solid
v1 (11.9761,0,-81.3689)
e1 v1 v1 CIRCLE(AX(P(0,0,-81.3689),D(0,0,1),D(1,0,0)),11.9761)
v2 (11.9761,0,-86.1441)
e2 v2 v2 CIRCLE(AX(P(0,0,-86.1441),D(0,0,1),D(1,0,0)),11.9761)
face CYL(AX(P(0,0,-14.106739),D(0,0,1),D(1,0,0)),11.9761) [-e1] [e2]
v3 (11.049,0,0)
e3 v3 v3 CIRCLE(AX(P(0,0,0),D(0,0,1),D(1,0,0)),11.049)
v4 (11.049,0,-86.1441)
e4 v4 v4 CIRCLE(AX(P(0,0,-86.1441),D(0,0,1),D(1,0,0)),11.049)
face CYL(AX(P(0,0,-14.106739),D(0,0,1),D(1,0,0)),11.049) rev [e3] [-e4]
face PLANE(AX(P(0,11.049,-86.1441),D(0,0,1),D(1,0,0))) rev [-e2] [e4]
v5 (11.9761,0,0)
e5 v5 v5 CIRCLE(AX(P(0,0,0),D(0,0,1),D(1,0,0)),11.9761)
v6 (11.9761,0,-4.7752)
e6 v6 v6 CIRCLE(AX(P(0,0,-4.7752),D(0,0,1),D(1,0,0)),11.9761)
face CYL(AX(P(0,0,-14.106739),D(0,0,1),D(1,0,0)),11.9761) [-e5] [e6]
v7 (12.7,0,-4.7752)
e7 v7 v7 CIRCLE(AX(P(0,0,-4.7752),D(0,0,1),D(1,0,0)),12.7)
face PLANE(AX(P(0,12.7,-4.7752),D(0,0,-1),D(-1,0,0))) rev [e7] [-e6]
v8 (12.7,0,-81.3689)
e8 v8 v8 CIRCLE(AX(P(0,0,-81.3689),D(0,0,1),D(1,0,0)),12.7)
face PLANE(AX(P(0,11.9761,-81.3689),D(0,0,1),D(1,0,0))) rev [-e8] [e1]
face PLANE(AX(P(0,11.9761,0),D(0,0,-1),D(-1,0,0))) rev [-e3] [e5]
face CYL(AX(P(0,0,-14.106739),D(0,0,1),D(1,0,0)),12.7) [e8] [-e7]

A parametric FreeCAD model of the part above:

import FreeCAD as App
import Part
import Sketcher

V = App.Vector
Q = App.Units.Quantity

doc = App.newDocument("Part")
body = doc.addObject("PartDesign::Body", "Body")

# Sketch on YZ plane
sketch1 = doc.addObject("Sketcher::SketchObject", "Sketch")
body.addObject(sketch1)
sketch1.AttachmentSupport = (doc.YZ_Plane, [""])
sketch1.MapMode = "FlatFace"
sketch1.addGeometry([
    Part.LineSegment(V(11, 0, 0), V(11, -86.1, 0)),  # 0
    Part.LineSegment(V(11, -86.1, 0), V(12, -86.1, 0)),  # 1
    Part.LineSegment(V(12, -86.1, 0), V(12, -81.4, 0)),  # 2
    Part.LineSegment(V(12, -81.4, 0), V(12.7, -81.4, 0)),  # 3
    Part.LineSegment(V(12.7, -81.4, 0), V(12.7, -4.8, 0)),  # 4
    Part.LineSegment(V(12.7, -4.8, 0), V(12, -4.8, 0)),  # 5
    Part.LineSegment(V(12, -4.8, 0), V(12, 0, 0)),  # 6
    Part.LineSegment(V(12, 0, 0), V(11, 0, 0)),  # 7
], False)
sketch1.addConstraint([
    Sketcher.Constraint("Coincident", 0, 2, 1, 1),
    Sketcher.Constraint("Coincident", 1, 2, 2, 1),
    Sketcher.Constraint("Coincident", 2, 2, 3, 1),
    Sketcher.Constraint("Coincident", 3, 2, 4, 1),
    Sketcher.Constraint("Coincident", 4, 2, 5, 1),
    Sketcher.Constraint("Coincident", 5, 2, 6, 1),
    Sketcher.Constraint("Coincident", 6, 2, 7, 1),
    Sketcher.Constraint("Coincident", 7, 2, 0, 1),
    Sketcher.Constraint("Vertical", 0),
    Sketcher.Constraint("Horizontal", 1),
    Sketcher.Constraint("Vertical", 2),
    Sketcher.Constraint("Horizontal", 3),
    Sketcher.Constraint("Vertical", 4),
    Sketcher.Constraint("Horizontal", 5),
    Sketcher.Constraint("Vertical", 6),
    Sketcher.Constraint("Horizontal", 7),
    Sketcher.Constraint("PointOnObject", 6, 2, -1),
    Sketcher.Constraint("Vertical", 2, 2, 5, 2),
    Sketcher.Constraint("Equal", 2, 6),
    Sketcher.Constraint("DistanceX", -1, 1, 3, 2, Q("0.5 in")),
    Sketcher.Constraint("DistanceY", 2, 1, 2, 2, Q("0.188 in")),
    Sketcher.Constraint("DistanceX", 1, 1, 1, 2, Q("0.0365 in")),
    Sketcher.Constraint("DistanceX", 3, 1, 3, 2, Q("0.0285 in")),
    Sketcher.Constraint("DistanceY", 0, 2, 0, 1, Q("3.3915 in")),
])
revolution = doc.addObject("PartDesign::Revolution", "Revolution")
body.addObject(revolution)
revolution.Profile = sketch1
revolution.ReferenceAxis = (sketch1, ["V_Axis"])
revolution.Angle = 360

doc.recompute()
